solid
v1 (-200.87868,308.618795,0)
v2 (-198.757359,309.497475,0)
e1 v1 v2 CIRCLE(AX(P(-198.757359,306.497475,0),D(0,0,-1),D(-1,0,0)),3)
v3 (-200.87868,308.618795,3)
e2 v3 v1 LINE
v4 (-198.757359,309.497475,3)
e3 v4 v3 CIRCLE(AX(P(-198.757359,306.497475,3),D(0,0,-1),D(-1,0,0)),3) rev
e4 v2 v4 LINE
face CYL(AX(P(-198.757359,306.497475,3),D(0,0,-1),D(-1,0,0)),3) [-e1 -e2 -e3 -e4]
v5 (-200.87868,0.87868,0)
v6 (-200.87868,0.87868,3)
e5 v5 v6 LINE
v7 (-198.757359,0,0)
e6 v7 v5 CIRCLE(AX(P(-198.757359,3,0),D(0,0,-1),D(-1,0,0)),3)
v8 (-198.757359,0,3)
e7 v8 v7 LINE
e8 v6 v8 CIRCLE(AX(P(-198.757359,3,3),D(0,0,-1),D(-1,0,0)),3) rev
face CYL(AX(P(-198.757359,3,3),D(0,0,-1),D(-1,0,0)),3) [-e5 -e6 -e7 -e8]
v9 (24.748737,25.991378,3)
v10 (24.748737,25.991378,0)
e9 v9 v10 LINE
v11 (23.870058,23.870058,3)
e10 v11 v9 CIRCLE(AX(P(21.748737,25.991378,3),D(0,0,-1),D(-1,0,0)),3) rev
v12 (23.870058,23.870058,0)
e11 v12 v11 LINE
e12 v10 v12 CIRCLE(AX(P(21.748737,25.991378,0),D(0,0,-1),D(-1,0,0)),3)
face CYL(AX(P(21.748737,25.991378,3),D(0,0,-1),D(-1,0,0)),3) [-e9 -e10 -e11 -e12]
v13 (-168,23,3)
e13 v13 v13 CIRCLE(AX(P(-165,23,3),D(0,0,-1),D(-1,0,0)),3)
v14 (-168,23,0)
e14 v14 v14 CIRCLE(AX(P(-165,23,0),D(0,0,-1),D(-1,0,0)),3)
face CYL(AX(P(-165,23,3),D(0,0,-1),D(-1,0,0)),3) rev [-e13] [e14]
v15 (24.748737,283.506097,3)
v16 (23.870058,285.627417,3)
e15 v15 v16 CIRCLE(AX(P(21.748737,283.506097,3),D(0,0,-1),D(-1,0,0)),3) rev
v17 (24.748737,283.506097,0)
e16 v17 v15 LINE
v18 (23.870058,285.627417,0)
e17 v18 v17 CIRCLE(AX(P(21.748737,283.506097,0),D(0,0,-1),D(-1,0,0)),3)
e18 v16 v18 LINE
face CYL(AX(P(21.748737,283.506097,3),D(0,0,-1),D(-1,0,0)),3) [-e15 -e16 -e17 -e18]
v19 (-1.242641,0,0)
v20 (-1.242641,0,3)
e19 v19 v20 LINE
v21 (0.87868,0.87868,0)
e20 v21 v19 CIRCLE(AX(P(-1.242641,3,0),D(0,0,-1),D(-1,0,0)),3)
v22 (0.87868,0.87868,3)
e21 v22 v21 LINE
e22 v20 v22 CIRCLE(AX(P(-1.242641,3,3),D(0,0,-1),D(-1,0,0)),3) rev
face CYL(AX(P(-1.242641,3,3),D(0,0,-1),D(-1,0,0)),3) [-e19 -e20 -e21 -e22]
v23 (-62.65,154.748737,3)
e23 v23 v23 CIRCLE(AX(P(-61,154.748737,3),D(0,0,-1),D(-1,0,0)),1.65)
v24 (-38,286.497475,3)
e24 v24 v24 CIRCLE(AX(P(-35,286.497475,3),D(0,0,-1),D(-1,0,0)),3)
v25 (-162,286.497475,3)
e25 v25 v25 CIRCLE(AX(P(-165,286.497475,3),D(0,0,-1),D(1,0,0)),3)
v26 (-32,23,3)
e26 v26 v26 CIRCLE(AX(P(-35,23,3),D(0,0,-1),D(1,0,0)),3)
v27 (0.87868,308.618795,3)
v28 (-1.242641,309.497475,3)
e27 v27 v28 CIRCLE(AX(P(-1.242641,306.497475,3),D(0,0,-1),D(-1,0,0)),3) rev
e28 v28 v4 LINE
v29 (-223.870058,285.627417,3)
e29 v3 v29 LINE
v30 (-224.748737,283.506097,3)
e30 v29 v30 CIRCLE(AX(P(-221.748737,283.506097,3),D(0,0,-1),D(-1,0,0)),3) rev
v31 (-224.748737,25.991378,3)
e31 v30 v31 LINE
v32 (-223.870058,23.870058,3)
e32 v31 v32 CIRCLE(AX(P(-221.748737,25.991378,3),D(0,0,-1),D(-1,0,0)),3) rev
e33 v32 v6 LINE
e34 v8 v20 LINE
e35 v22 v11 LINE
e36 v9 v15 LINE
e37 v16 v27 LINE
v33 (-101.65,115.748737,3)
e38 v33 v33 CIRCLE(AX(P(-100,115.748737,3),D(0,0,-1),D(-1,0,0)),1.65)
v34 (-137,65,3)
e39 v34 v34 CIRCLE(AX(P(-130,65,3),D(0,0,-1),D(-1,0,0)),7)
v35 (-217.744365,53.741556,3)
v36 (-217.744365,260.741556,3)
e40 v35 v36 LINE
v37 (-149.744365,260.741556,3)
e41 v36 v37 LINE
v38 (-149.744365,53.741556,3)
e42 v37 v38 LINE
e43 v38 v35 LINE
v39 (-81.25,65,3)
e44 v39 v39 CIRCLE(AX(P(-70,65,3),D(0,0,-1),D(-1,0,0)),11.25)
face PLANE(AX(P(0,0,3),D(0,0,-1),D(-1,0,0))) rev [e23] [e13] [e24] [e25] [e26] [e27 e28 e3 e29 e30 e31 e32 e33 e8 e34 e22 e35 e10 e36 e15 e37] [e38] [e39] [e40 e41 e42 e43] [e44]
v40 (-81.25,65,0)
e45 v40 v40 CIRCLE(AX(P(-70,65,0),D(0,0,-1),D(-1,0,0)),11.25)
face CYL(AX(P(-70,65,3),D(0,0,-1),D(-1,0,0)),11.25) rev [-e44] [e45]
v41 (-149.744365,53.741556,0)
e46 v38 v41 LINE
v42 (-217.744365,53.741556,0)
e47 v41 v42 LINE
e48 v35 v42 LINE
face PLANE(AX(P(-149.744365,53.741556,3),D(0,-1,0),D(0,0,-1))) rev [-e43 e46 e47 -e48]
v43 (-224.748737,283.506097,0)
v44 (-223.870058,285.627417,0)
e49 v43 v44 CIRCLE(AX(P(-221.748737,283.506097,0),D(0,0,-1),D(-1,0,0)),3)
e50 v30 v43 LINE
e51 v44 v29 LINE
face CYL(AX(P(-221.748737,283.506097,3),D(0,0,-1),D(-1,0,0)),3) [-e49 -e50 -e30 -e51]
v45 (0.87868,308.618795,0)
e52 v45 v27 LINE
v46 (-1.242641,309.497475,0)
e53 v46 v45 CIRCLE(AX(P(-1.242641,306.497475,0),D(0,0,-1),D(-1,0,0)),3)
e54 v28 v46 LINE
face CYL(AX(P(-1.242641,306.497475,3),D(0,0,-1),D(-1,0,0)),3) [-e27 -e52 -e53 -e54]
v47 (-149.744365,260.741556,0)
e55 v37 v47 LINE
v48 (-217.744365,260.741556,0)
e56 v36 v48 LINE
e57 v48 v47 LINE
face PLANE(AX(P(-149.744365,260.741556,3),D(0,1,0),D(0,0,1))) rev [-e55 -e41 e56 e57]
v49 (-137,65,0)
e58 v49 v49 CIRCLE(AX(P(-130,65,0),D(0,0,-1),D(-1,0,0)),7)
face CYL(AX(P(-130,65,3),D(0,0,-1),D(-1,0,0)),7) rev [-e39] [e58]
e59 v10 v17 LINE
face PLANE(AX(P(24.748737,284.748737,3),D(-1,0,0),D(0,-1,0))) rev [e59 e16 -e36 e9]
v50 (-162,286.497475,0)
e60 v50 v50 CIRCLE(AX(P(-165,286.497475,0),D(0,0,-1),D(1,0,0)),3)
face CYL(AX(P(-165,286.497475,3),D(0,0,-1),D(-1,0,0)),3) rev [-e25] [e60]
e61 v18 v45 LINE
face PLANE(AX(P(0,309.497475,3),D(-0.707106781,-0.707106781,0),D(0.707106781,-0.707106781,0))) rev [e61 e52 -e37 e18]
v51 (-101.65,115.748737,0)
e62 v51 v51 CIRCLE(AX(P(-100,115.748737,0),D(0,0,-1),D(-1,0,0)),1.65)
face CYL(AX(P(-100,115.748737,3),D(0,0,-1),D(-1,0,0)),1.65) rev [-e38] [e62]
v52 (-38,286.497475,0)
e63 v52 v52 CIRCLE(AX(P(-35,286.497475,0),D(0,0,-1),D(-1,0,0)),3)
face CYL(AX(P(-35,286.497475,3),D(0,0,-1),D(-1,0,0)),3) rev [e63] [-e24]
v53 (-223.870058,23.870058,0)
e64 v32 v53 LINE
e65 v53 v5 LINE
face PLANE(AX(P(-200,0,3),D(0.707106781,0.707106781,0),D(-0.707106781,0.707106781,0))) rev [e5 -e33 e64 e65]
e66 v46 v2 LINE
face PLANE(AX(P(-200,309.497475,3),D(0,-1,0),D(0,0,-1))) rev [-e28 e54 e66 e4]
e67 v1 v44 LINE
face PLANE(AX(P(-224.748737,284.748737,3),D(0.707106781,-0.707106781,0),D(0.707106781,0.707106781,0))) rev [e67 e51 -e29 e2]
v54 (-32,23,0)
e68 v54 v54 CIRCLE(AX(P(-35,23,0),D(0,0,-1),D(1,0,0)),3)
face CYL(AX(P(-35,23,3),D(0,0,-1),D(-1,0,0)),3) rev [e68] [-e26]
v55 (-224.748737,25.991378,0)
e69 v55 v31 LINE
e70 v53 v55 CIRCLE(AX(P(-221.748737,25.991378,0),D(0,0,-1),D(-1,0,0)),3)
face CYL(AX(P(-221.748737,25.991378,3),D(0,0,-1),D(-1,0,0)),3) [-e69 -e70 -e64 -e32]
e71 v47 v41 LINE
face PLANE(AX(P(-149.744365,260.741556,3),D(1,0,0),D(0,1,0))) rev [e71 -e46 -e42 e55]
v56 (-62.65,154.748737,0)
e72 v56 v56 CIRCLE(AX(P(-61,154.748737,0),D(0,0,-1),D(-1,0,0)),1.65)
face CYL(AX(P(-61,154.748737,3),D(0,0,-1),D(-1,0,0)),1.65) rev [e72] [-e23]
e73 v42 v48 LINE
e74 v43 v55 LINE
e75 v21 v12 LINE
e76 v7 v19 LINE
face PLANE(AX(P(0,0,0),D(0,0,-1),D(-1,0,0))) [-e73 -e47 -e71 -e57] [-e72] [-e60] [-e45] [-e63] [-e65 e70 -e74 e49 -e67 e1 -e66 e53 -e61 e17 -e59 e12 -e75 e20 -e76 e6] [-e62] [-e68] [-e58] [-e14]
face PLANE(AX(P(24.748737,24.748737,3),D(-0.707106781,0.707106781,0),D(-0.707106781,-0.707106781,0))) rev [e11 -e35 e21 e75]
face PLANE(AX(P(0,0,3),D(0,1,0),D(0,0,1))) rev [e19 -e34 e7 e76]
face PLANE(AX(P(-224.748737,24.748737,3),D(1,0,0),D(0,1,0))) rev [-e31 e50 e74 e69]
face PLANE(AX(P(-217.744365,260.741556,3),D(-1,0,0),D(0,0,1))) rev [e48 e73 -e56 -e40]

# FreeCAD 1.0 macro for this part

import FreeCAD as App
import Part
import Sketcher

V = App.Vector


def edges_at(feature, points):
    """Names of the edges that pass closest to the given points."""
    edges = feature.Shape.Edges
    near = lambda p: min(range(len(edges)), key=lambda i: edges[i].distToShape(Part.Vertex(*p))[0])
    return sorted({f"Edge{near(p) + 1}" for p in points})


def add_polygon(sketch, points):
    """Adds a closed chain of lines whose ends are joined by coincident constraints."""
    first, n = sketch.GeometryCount, len(points)
    for a, b in zip(points, points[1:] + points[:1]):
        sketch.addGeometry(Part.LineSegment(App.Vector(*a, 0), App.Vector(*b, 0)), False)
    for i in range(n):
        sketch.addConstraint(Sketcher.Constraint("Coincident", first + i, 2, first + (i + 1) % n, 1))

doc = App.newDocument("Part")
params = doc.addObject("Spreadsheet::Sheet", "Params")
for row, (alias, value) in enumerate([
    ("sketch1_width", "200 mm"),
    ("sketch1_height", "260 mm"),
    ("sketch1_length", "35 mm"),
    ("pad1_length", "3 mm"),
    ("fillet_radius", "3 mm"),
    ("sketch2_diameter", "6 mm"),
    ("sketch3_diameter", "3.3 mm"),
    ("sketch4_diameter", "22.5 mm"),
    ("sketch5_diameter", "14 mm"),
    ("sketch6_width", "68 mm"),
    ("sketch6_height", "207 mm"),
], start=1):
    params.set(f"A{row}", alias)
    params.set(f"B{row}", "=" + value)
    params.setAlias(f"B{row}", alias)

body = doc.addObject("PartDesign::Body", "Body")

sketch1 = doc.addObject("Sketcher::SketchObject", "Sketch")
body.addObject(sketch1)
sketch1.AttachmentSupport = (doc.XY_Plane, [""])
sketch1.MapMode = "FlatFace"
add_polygon(sketch1, [(-200, 0), (0, 0), (24.748737, 24.748737), (24.748737, 284.748737), (0, 309.497475), (-200, 309.497475), (-224.748737, 284.748737), (-224.748737, 24.748737)])
sketch1.addConstraint([
    Sketcher.Constraint("Horizontal", 0),
    Sketcher.Constraint("Vertical", 2),
    Sketcher.Constraint("Horizontal", 4),
    Sketcher.Constraint("Vertical", 6),
    Sketcher.Constraint("Coincident", 0, 2, -1, 1),
    Sketcher.Constraint("PointOnObject", 3, 2, -2),
    Sketcher.Constraint("Perpendicular", 1, 3),
    Sketcher.Constraint("Perpendicular", 3, 5),
    Sketcher.Constraint("Perpendicular", 5, 7),
    Sketcher.Constraint("Horizontal", 2, 2, 5, 2),
    Sketcher.Constraint("Horizontal", 1, 2, 6, 2),
    Sketcher.Constraint("Vertical", 4, 2, 7, 2),
    Sketcher.Constraint("DistanceX", 0, 1, 0, 2, 200.0),
    Sketcher.Constraint("DistanceY", 2, 1, 2, 2, 260.0),
    Sketcher.Constraint("Distance", 1, 35.0),
])
sketch1.setExpression("Constraints[20]", "Params.sketch1_width")
sketch1.setExpression("Constraints[21]", "Params.sketch1_height")
sketch1.setExpression("Constraints[22]", "Params.sketch1_length")
pad1 = doc.addObject("PartDesign::Pad", "Pad")
body.addObject(pad1)
pad1.Profile = sketch1
pad1.setExpression("Length", "Params.pad1_length")
doc.recompute()

fillet = doc.addObject("PartDesign::Fillet", "Fillet")
body.addObject(fillet)
fillet.Base = (pad1, edges_at(pad1, [
    (0, 0, 1.5),
    (-200, 0, 1.5),
    (-224.749, 24.749, 1.5),
    (-224.749, 284.749, 1.5),
    (-200, 309.497, 1.5),
    (0, 309.497, 1.5),
    (24.749, 284.749, 1.5),
    (24.749, 24.749, 1.5),
]))
fillet.setExpression("Radius", "Params.fillet_radius")

sketch2 = doc.addObject("Sketcher::SketchObject", "Sketch001")
body.addObject(sketch2)
sketch2.AttachmentSupport = (doc.XY_Plane, [""])
sketch2.MapMode = "FlatFace"
sketch2.addGeometry([
    Part.Circle(V(-35, 286.497475, 0), V(0, 0, 1), 3),
    Part.Circle(V(-165, 286.497475, 0), V(0, 0, 1), 3),
    Part.Circle(V(-165, 23, 0), V(0, 0, 1), 3),
    Part.Circle(V(-35, 23, 0), V(0, 0, 1), 3),
], False)
sketch2.addConstraint([
    Sketcher.Constraint("Equal", 0, 1),
    Sketcher.Constraint("Equal", 1, 2),
    Sketcher.Constraint("Equal", 2, 3),
    Sketcher.Constraint("Horizontal", 0, 3, 1, 3),
    Sketcher.Constraint("Horizontal", 2, 3, 3, 3),
    Sketcher.Constraint("Vertical", 1, 3, 2, 3),
    Sketcher.Constraint("Vertical", 0, 3, 3, 3),
    Sketcher.Constraint("Diameter", 0, 6.0),
    Sketcher.Constraint("DistanceX", 0, 3, -1, 1, 35.0),
    Sketcher.Constraint("DistanceX", 1, 3, -1, 1, 165.0),
    Sketcher.Constraint("DistanceY", -1, 1, 2, 3, 23.0),
    Sketcher.Constraint("DistanceY", -1, 1, 0, 3, 286.497475),
])
sketch2.setExpression("Constraints[7]", "Params.sketch2_diameter")
pocket1 = doc.addObject("PartDesign::Pocket", "Pocket")
body.addObject(pocket1)
pocket1.Profile = sketch2
pocket1.Type = "ThroughAll"
pocket1.Reversed = True

sketch3 = doc.addObject("Sketcher::SketchObject", "Sketch002")
body.addObject(sketch3)
sketch3.AttachmentSupport = (doc.XY_Plane, [""])
sketch3.MapMode = "FlatFace"
sketch3.addGeometry([
    Part.Circle(V(-61, 154.748737, 0), V(0, 0, 1), 1.65),
    Part.Circle(V(-100, 115.748737, 0), V(0, 0, 1), 1.65),
], False)
sketch3.addConstraint([
    Sketcher.Constraint("Equal", 0, 1),
    Sketcher.Constraint("Diameter", 0, 3.3),
    Sketcher.Constraint("DistanceX", 0, 3, -1, 1, 61.0),
    Sketcher.Constraint("DistanceX", 1, 3, -1, 1, 100.0),
    Sketcher.Constraint("DistanceY", 1, 3, 0, 3, 39.0),
    Sketcher.Constraint("DistanceY", -1, 1, 0, 3, 154.748737),
])
sketch3.setExpression("Constraints[1]", "Params.sketch3_diameter")
pocket2 = doc.addObject("PartDesign::Pocket", "Pocket001")
body.addObject(pocket2)
pocket2.Profile = sketch3
pocket2.Type = "ThroughAll"
pocket2.Reversed = True

sketch4 = doc.addObject("Sketcher::SketchObject", "Sketch003")
body.addObject(sketch4)
sketch4.AttachmentSupport = (doc.XY_Plane, [""])
sketch4.MapMode = "FlatFace"
sketch4.addGeometry(Part.Circle(V(-70, 65, 0), V(0, 0, 1), 11.25), False)
sketch4.addConstraint([
    Sketcher.Constraint("Diameter", 0, 22.5),
    Sketcher.Constraint("DistanceX", 0, 3, -1, 1, 70.0),
    Sketcher.Constraint("DistanceY", -1, 1, 0, 3, 65.0),
])
sketch4.setExpression("Constraints[0]", "Params.sketch4_diameter")
pocket3 = doc.addObject("PartDesign::Pocket", "Pocket002")
body.addObject(pocket3)
pocket3.Profile = sketch4
pocket3.Type = "ThroughAll"
pocket3.Reversed = True

sketch5 = doc.addObject("Sketcher::SketchObject", "Sketch004")
body.addObject(sketch5)
sketch5.AttachmentSupport = (doc.XY_Plane, [""])
sketch5.MapMode = "FlatFace"
sketch5.addGeometry(Part.Circle(V(-130, 65, 0), V(0, 0, 1), 7), False)
sketch5.addConstraint([
    Sketcher.Constraint("Diameter", 0, 14.0),
    Sketcher.Constraint("DistanceX", 0, 3, -1, 1, 130.0),
    Sketcher.Constraint("DistanceY", -1, 1, 0, 3, 65.0),
])
sketch5.setExpression("Constraints[0]", "Params.sketch5_diameter")
pocket4 = doc.addObject("PartDesign::Pocket", "Pocket003")
body.addObject(pocket4)
pocket4.Profile = sketch5
pocket4.Type = "ThroughAll"
pocket4.Reversed = True

sketch6 = doc.addObject("Sketcher::SketchObject", "Sketch005")
body.addObject(sketch6)
sketch6.AttachmentSupport = (doc.XY_Plane, [""])
sketch6.MapMode = "FlatFace"
add_polygon(sketch6, [(-149.744365, 260.741556), (-149.744365, 53.741556), (-217.744365, 53.741556), (-217.744365, 260.741556)])
sketch6.addConstraint([
    Sketcher.Constraint("Vertical", 0),
    Sketcher.Constraint("Horizontal", 1),
    Sketcher.Constraint("Vertical", 2),
    Sketcher.Constraint("Horizontal", 3),
    Sketcher.Constraint("DistanceX", 1, 2, 1, 1, 68.0),
    Sketcher.Constraint("DistanceY", 0, 2, 0, 1, 207.0),
    Sketcher.Constraint("DistanceX", 0, 2, -1, 1, 149.744365),
    Sketcher.Constraint("DistanceY", -1, 1, 0, 2, 53.741556),
])
sketch6.setExpression("Constraints[8]", "Params.sketch6_width")
sketch6.setExpression("Constraints[9]", "Params.sketch6_height")
pocket5 = doc.addObject("PartDesign::Pocket", "Pocket004")
body.addObject(pocket5)
pocket5.Profile = sketch6
pocket5.Type = "ThroughAll"
pocket5.Reversed = True

doc.recompute()
